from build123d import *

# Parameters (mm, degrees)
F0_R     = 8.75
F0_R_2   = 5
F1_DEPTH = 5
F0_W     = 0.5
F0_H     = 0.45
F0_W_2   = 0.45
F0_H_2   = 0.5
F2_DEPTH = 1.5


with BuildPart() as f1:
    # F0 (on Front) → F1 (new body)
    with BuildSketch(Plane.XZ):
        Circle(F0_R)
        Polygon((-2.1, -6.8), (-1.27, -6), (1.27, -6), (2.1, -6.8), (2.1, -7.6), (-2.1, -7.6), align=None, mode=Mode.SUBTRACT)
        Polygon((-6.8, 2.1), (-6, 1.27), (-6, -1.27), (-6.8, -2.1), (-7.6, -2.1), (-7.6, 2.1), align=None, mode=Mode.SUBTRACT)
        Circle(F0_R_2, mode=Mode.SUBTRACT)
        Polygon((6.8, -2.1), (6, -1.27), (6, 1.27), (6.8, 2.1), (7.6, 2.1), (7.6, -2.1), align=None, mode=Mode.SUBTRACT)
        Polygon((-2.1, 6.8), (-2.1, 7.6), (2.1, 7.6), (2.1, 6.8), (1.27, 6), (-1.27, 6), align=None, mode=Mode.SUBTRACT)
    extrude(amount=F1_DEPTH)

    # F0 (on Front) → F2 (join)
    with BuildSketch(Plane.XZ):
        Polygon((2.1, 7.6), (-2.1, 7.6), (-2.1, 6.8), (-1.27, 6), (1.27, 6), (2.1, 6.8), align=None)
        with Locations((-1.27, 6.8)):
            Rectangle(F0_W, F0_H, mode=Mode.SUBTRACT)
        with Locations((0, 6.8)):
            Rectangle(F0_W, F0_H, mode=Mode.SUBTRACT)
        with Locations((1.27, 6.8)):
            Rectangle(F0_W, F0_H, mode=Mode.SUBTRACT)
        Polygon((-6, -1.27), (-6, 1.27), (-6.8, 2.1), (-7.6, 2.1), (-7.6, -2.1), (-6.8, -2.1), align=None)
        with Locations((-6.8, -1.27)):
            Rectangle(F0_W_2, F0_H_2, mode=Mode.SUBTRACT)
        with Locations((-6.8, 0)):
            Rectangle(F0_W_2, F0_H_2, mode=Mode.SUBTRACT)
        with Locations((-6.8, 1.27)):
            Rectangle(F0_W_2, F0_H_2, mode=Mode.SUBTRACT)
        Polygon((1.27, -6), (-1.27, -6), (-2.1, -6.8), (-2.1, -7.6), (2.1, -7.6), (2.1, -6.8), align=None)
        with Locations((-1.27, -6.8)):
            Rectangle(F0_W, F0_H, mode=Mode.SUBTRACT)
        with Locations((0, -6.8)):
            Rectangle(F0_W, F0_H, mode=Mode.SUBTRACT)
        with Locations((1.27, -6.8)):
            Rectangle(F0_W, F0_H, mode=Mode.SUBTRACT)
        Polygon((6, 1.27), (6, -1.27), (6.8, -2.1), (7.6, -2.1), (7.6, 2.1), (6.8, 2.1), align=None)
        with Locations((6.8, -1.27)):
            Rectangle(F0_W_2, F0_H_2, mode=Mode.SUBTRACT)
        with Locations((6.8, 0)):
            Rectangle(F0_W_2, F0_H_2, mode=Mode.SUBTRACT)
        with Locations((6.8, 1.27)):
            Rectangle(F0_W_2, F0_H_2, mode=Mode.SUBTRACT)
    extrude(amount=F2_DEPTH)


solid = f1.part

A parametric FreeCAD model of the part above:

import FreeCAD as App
import Part
import Sketcher

V = App.Vector
Q = App.Units.Quantity

doc = App.newDocument("Part")
body = doc.addObject("PartDesign::Body", "Body")

# Sketch on XZ plane
sketch1 = body.newObject("Sketcher::SketchObject", "Sketch")
sketch1.AttachmentSupport = (doc.getObject("XZ_Plane"), [""])
sketch1.MapMode = "FlatFace"
sketch1.addGeometry([
    Part.Circle(V(0, 0, 0), V(0, 0, 1), 8.8),  # 0
    Part.LineSegment(V(-2.1, -7.6, 0), V(-2.1, -6.8, 0)),  # 1
    Part.LineSegment(V(-2.1, -6.8, 0), V(-1.3, -6, 0)),  # 2
    Part.LineSegment(V(-1.3, -6, 0), V(1.3, -6, 0)),  # 3
    Part.LineSegment(V(1.3, -6, 0), V(2.1, -6.8, 0)),  # 4
    Part.LineSegment(V(2.1, -6.8, 0), V(2.1, -7.6, 0)),  # 5
    Part.LineSegment(V(2.1, -7.6, 0), V(-2.1, -7.6, 0)),  # 6
    Part.LineSegment(V(-7.6, 2.1, 0), V(-6.8, 2.1, 0)),  # 7
    Part.LineSegment(V(-6.8, 2.1, 0), V(-6, 1.3, 0)),  # 8
    Part.LineSegment(V(-6, 1.3, 0), V(-6, -1.3, 0)),  # 9
    Part.LineSegment(V(-6, -1.3, 0), V(-6.8, -2.1, 0)),  # 10
    Part.LineSegment(V(-6.8, -2.1, 0), V(-7.6, -2.1, 0)),  # 11
    Part.LineSegment(V(-7.6, -2.1, 0), V(-7.6, 2.1, 0)),  # 12
    Part.Circle(V(0, 0, 0), V(0, 0, 1), 5),  # 13
    Part.LineSegment(V(7.6, -2.1, 0), V(6.8, -2.1, 0)),  # 14
    Part.LineSegment(V(6.8, -2.1, 0), V(6, -1.3, 0)),  # 15
    Part.LineSegment(V(6, -1.3, 0), V(6, 1.3, 0)),  # 16
    Part.LineSegment(V(6, 1.3, 0), V(6.8, 2.1, 0)),  # 17
    Part.LineSegment(V(6.8, 2.1, 0), V(7.6, 2.1, 0)),  # 18
    Part.LineSegment(V(7.6, 2.1, 0), V(7.6, -2.1, 0)),  # 19
    Part.LineSegment(V(-1.3, 6, 0), V(-2.1, 6.8, 0)),  # 20
    Part.LineSegment(V(-2.1, 6.8, 0), V(-2.1, 7.6, 0)),  # 21
    Part.LineSegment(V(-2.1, 7.6, 0), V(2.1, 7.6, 0)),  # 22
    Part.LineSegment(V(2.1, 7.6, 0), V(2.1, 6.8, 0)),  # 23
    Part.LineSegment(V(2.1, 6.8, 0), V(1.3, 6, 0)),  # 24
    Part.LineSegment(V(1.3, 6, 0), V(-1.3, 6, 0)),  # 25
], False)
sketch1.addConstraint([
    Sketcher.Constraint("Coincident", 1, 2, 2, 1),
    Sketcher.Constraint("Coincident", 2, 2, 3, 1),
    Sketcher.Constraint("Coincident", 3, 2, 4, 1),
    Sketcher.Constraint("Coincident", 4, 2, 5, 1),
    Sketcher.Constraint("Coincident", 5, 2, 6, 1),
    Sketcher.Constraint("Coincident", 6, 2, 1, 1),
    Sketcher.Constraint("Coincident", 7, 2, 8, 1),
    Sketcher.Constraint("Coincident", 8, 2, 9, 1),
    Sketcher.Constraint("Coincident", 9, 2, 10, 1),
    Sketcher.Constraint("Coincident", 10, 2, 11, 1),
    Sketcher.Constraint("Coincident", 11, 2, 12, 1),
    Sketcher.Constraint("Coincident", 12, 2, 7, 1),
    Sketcher.Constraint("Coincident", 14, 2, 15, 1),
    Sketcher.Constraint("Coincident", 15, 2, 16, 1),
    Sketcher.Constraint("Coincident", 16, 2, 17, 1),
    Sketcher.Constraint("Coincident", 17, 2, 18, 1),
    Sketcher.Constraint("Coincident", 18, 2, 19, 1),
    Sketcher.Constraint("Coincident", 19, 2, 14, 1),
    Sketcher.Constraint("Coincident", 20, 2, 21, 1),
    Sketcher.Constraint("Coincident", 21, 2, 22, 1),
    Sketcher.Constraint("Coincident", 22, 2, 23, 1),
    Sketcher.Constraint("Coincident", 23, 2, 24, 1),
    Sketcher.Constraint("Coincident", 24, 2, 25, 1),
    Sketcher.Constraint("Coincident", 25, 2, 20, 1),
    Sketcher.Constraint("Vertical", 1),
    Sketcher.Constraint("Horizontal", 3),
    Sketcher.Constraint("Vertical", 5),
    Sketcher.Constraint("Horizontal", 6),
    Sketcher.Constraint("Horizontal", 7),
    Sketcher.Constraint("Vertical", 9),
    Sketcher.Constraint("Horizontal", 11),
    Sketcher.Constraint("Vertical", 12),
    Sketcher.Constraint("Horizontal", 14),
    Sketcher.Constraint("Vertical", 16),
    Sketcher.Constraint("Horizontal", 18),
    Sketcher.Constraint("Vertical", 19),
    Sketcher.Constraint("Vertical", 21),
    Sketcher.Constraint("Horizontal", 22),
    Sketcher.Constraint("Vertical", 23),
    Sketcher.Constraint("Horizontal", 25),
    Sketcher.Constraint("Coincident", 0, 3, -1, 1),
    Sketcher.Constraint("Coincident", 13, 3, -1, 1),
    Sketcher.Constraint("Symmetric", 7, 2, 14, 2, -1, 1),
    Sketcher.Constraint("Symmetric", 8, 2, 15, 2, -1, 1),
    Sketcher.Constraint("Symmetric", 10, 2, 17, 2, -1, 1),
    Sketcher.Constraint("Symmetric", 4, 2, 20, 2, -1, 1),
    Sketcher.Constraint("Symmetric", 6, 2, 22, 2, -1, 1),
    Sketcher.Constraint("Symmetric", 2, 2, 24, 2, -1, 1),
    Sketcher.Constraint("Symmetric", 1, 2, 4, 2, -2),
    Sketcher.Constraint("Symmetric", 10, 2, 14, 2, -2),
    Sketcher.Constraint("Perpendicular", 2, 8),
    Sketcher.Constraint("Perpendicular", 4, 10),
    Sketcher.Constraint("Parallel", 10, 17),
    Sketcher.Constraint("Perpendicular", 17, 20),
    Sketcher.Constraint("Perpendicular", 15, 24),
    Sketcher.Constraint("Horizontal", 9, 2, 15, 2),
    Sketcher.Constraint("Equal", 11, 14),
    Sketcher.Constraint("Equal", 18, 1),
    Sketcher.Constraint("Equal", 25, 9),
    Sketcher.Constraint("Equal", 22, 12),
    Sketcher.Constraint("Diameter", 13, Q("10 mm")),
    Sketcher.Constraint("Diameter", 0, Q("17.5 mm")),
    Sketcher.Constraint("DistanceX", 6, 2, 6, 1, Q("4.2 mm")),
    Sketcher.Constraint("DistanceX", 7, 1, 7, 2, Q("0.8 mm")),
    Sketcher.Constraint("DistanceY", 2, 2, -1, 1, Q("6 mm")),
    Sketcher.Constraint("DistanceX", 8, 2, -1, 1, Q("6 mm")),
    Sketcher.Constraint("DistanceX", 3, 1, 3, 2, Q("2.54 mm")),
    Sketcher.Constraint("DistanceY", 1, 2, -1, 1, Q("6.8 mm")),
])
pad1 = body.newObject("PartDesign::Pad", "Pad")
pad1.Profile = sketch1
pad1.Length = 5

# Sketch on XZ plane
sketch2 = body.newObject("Sketcher::SketchObject", "Sketch001")
sketch2.AttachmentSupport = (doc.getObject("XZ_Plane"), [""])
sketch2.MapMode = "FlatFace"
sketch2.addGeometry([
    Part.LineSegment(V(2.1, 7.6, 0), V(-2.1, 7.6, 0)),  # 0
    Part.LineSegment(V(-2.1, 7.6, 0), V(-2.1, 6.8, 0)),  # 1
    Part.LineSegment(V(-2.1, 6.8, 0), V(-1.27, 6, 0)),  # 2
    Part.LineSegment(V(-1.27, 6, 0), V(1.27, 6, 0)),  # 3
    Part.LineSegment(V(1.27, 6, 0), V(2.1, 6.8, 0)),  # 4
    Part.LineSegment(V(2.1, 6.8, 0), V(2.1, 7.6, 0)),  # 5
    Part.LineSegment(V(-1.02, 6.58, 0), V(-1.52, 6.58, 0)),  # 6
    Part.LineSegment(V(-1.52, 6.58, 0), V(-1.52, 7.03, 0)),  # 7
    Part.LineSegment(V(-1.52, 7.03, 0), V(-1.02, 7.03, 0)),  # 8
    Part.LineSegment(V(-1.02, 7.03, 0), V(-1.02, 6.58, 0)),  # 9
    Part.LineSegment(V(0.25, 6.58, 0), V(-0.25, 6.58, 0)),  # 10
    Part.LineSegment(V(-0.25, 6.58, 0), V(-0.25, 7.03, 0)),  # 11
    Part.LineSegment(V(-0.25, 7.03, 0), V(0.25, 7.03, 0)),  # 12
    Part.LineSegment(V(0.25, 7.03, 0), V(0.25, 6.58, 0)),  # 13
    Part.LineSegment(V(1.52, 6.58, 0), V(1.02, 6.58, 0)),  # 14
    Part.LineSegment(V(1.02, 6.58, 0), V(1.02, 7.03, 0)),  # 15
    Part.LineSegment(V(1.02, 7.03, 0), V(1.52, 7.03, 0)),  # 16
    Part.LineSegment(V(1.52, 7.03, 0), V(1.52, 6.58, 0)),  # 17
    Part.LineSegment(V(-6, -1.27, 0), V(-6, 1.27, 0)),  # 18
    Part.LineSegment(V(-6, 1.27, 0), V(-6.8, 2.1, 0)),  # 19
    Part.LineSegment(V(-6.8, 2.1, 0), V(-7.6, 2.1, 0)),  # 20
    Part.LineSegment(V(-7.6, 2.1, 0), V(-7.6, -2.1, 0)),  # 21
    Part.LineSegment(V(-7.6, -2.1, 0), V(-6.8, -2.1, 0)),  # 22
    Part.LineSegment(V(-6.8, -2.1, 0), V(-6, -1.27, 0)),  # 23
    Part.LineSegment(V(-6.58, -1.52, 0), V(-7.03, -1.52, 0)),  # 24
    Part.LineSegment(V(-7.03, -1.52, 0), V(-7.03, -1.02, 0)),  # 25
    Part.LineSegment(V(-7.03, -1.02, 0), V(-6.58, -1.02, 0)),  # 26
    Part.LineSegment(V(-6.58, -1.02, 0), V(-6.58, -1.52, 0)),  # 27
    Part.LineSegment(V(-6.58, -0.25, 0), V(-7.03, -0.25, 0)),  # 28
    Part.LineSegment(V(-7.03, -0.25, 0), V(-7.03, 0.25, 0)),  # 29
    Part.LineSegment(V(-7.03, 0.25, 0), V(-6.58, 0.25, 0)),  # 30
    Part.LineSegment(V(-6.58, 0.25, 0), V(-6.58, -0.25, 0)),  # 31
    Part.LineSegment(V(-6.58, 1.02, 0), V(-7.03, 1.02, 0)),  # 32
    Part.LineSegment(V(-7.03, 1.02, 0), V(-7.03, 1.52, 0)),  # 33
    Part.LineSegment(V(-7.03, 1.52, 0), V(-6.58, 1.52, 0)),  # 34
    Part.LineSegment(V(-6.58, 1.52, 0), V(-6.58, 1.02, 0)),  # 35
    Part.LineSegment(V(1.27, -6, 0), V(-1.27, -6, 0)),  # 36
    Part.LineSegment(V(-1.27, -6, 0), V(-2.1, -6.8, 0)),  # 37
    Part.LineSegment(V(-2.1, -6.8, 0), V(-2.1, -7.6, 0)),  # 38
    Part.LineSegment(V(-2.1, -7.6, 0), V(2.1, -7.6, 0)),  # 39
    Part.LineSegment(V(2.1, -7.6, 0), V(2.1, -6.8, 0)),  # 40
    Part.LineSegment(V(2.1, -6.8, 0), V(1.27, -6, 0)),  # 41
    Part.LineSegment(V(-1.02, -7.03, 0), V(-1.52, -7.03, 0)),  # 42
    Part.LineSegment(V(-1.52, -7.03, 0), V(-1.52, -6.58, 0)),  # 43
    Part.LineSegment(V(-1.52, -6.58, 0), V(-1.02, -6.58, 0)),  # 44
    Part.LineSegment(V(-1.02, -6.58, 0), V(-1.02, -7.03, 0)),  # 45
    Part.LineSegment(V(0.25, -7.03, 0), V(-0.25, -7.03, 0)),  # 46
    Part.LineSegment(V(-0.25, -7.03, 0), V(-0.25, -6.58, 0)),  # 47
    Part.LineSegment(V(-0.25, -6.58, 0), V(0.25, -6.58, 0)),  # 48
    Part.LineSegment(V(0.25, -6.58, 0), V(0.25, -7.03, 0)),  # 49
    Part.LineSegment(V(1.52, -7.03, 0), V(1.02, -7.03, 0)),  # 50
    Part.LineSegment(V(1.02, -7.03, 0), V(1.02, -6.58, 0)),  # 51
    Part.LineSegment(V(1.02, -6.58, 0), V(1.52, -6.58, 0)),  # 52
    Part.LineSegment(V(1.52, -6.58, 0), V(1.52, -7.03, 0)),  # 53
    Part.LineSegment(V(6, 1.27, 0), V(6, -1.27, 0)),  # 54
    Part.LineSegment(V(6, -1.27, 0), V(6.8, -2.1, 0)),  # 55
    Part.LineSegment(V(6.8, -2.1, 0), V(7.6, -2.1, 0)),  # 56
    Part.LineSegment(V(7.6, -2.1, 0), V(7.6, 2.1, 0)),  # 57
    Part.LineSegment(V(7.6, 2.1, 0), V(6.8, 2.1, 0)),  # 58
    Part.LineSegment(V(6.8, 2.1, 0), V(6, 1.27, 0)),  # 59
    Part.LineSegment(V(7.03, -1.52, 0), V(6.58, -1.52, 0)),  # 60
    Part.LineSegment(V(6.58, -1.52, 0), V(6.58, -1.02, 0)),  # 61
    Part.LineSegment(V(6.58, -1.02, 0), V(7.03, -1.02, 0)),  # 62
    Part.LineSegment(V(7.03, -1.02, 0), V(7.03, -1.52, 0)),  # 63
    Part.LineSegment(V(7.03, -0.25, 0), V(6.58, -0.25, 0)),  # 64
    Part.LineSegment(V(6.58, -0.25, 0), V(6.58, 0.25, 0)),  # 65
    Part.LineSegment(V(6.58, 0.25, 0), V(7.03, 0.25, 0)),  # 66
    Part.LineSegment(V(7.03, 0.25, 0), V(7.03, -0.25, 0)),  # 67
    Part.LineSegment(V(7.03, 1.02, 0), V(6.58, 1.02, 0)),  # 68
    Part.LineSegment(V(6.58, 1.02, 0), V(6.58, 1.52, 0)),  # 69
    Part.LineSegment(V(6.58, 1.52, 0), V(7.03, 1.52, 0)),  # 70
    Part.LineSegment(V(7.03, 1.52, 0), V(7.03, 1.02, 0)),  # 71
], False)
sketch2.addConstraint([
    Sketcher.Constraint("Coincident", 0, 2, 1, 1),
    Sketcher.Constraint("Coincident", 1, 2, 2, 1),
    Sketcher.Constraint("Coincident", 2, 2, 3, 1),
    Sketcher.Constraint("Coincident", 3, 2, 4, 1),
    Sketcher.Constraint("Coincident", 4, 2, 5, 1),
    Sketcher.Constraint("Coincident", 5, 2, 0, 1),
    Sketcher.Constraint("Coincident", 6, 2, 7, 1),
    Sketcher.Constraint("Coincident", 7, 2, 8, 1),
    Sketcher.Constraint("Coincident", 8, 2, 9, 1),
    Sketcher.Constraint("Coincident", 9, 2, 6, 1),
    Sketcher.Constraint("Coincident", 10, 2, 11, 1),
    Sketcher.Constraint("Coincident", 11, 2, 12, 1),
    Sketcher.Constraint("Coincident", 12, 2, 13, 1),
    Sketcher.Constraint("Coincident", 13, 2, 10, 1),
    Sketcher.Constraint("Coincident", 14, 2, 15, 1),
    Sketcher.Constraint("Coincident", 15, 2, 16, 1),
    Sketcher.Constraint("Coincident", 16, 2, 17, 1),
    Sketcher.Constraint("Coincident", 17, 2, 14, 1),
    Sketcher.Constraint("Coincident", 18, 2, 19, 1),
    Sketcher.Constraint("Coincident", 19, 2, 20, 1),
    Sketcher.Constraint("Coincident", 20, 2, 21, 1),
    Sketcher.Constraint("Coincident", 21, 2, 22, 1),
    Sketcher.Constraint("Coincident", 22, 2, 23, 1),
    Sketcher.Constraint("Coincident", 23, 2, 18, 1),
    Sketcher.Constraint("Coincident", 24, 2, 25, 1),
    Sketcher.Constraint("Coincident", 25, 2, 26, 1),
    Sketcher.Constraint("Coincident", 26, 2, 27, 1),
    Sketcher.Constraint("Coincident", 27, 2, 24, 1),
    Sketcher.Constraint("Coincident", 28, 2, 29, 1),
    Sketcher.Constraint("Coincident", 29, 2, 30, 1),
    Sketcher.Constraint("Coincident", 30, 2, 31, 1),
    Sketcher.Constraint("Coincident", 31, 2, 28, 1),
    Sketcher.Constraint("Coincident", 32, 2, 33, 1),
    Sketcher.Constraint("Coincident", 33, 2, 34, 1),
    Sketcher.Constraint("Coincident", 34, 2, 35, 1),
    Sketcher.Constraint("Coincident", 35, 2, 32, 1),
    Sketcher.Constraint("Coincident", 36, 2, 37, 1),
    Sketcher.Constraint("Coincident", 37, 2, 38, 1),
    Sketcher.Constraint("Coincident", 38, 2, 39, 1),
    Sketcher.Constraint("Coincident", 39, 2, 40, 1),
    Sketcher.Constraint("Coincident", 40, 2, 41, 1),
    Sketcher.Constraint("Coincident", 41, 2, 36, 1),
    Sketcher.Constraint("Coincident", 42, 2, 43, 1),
    Sketcher.Constraint("Coincident", 43, 2, 44, 1),
    Sketcher.Constraint("Coincident", 44, 2, 45, 1),
    Sketcher.Constraint("Coincident", 45, 2, 42, 1),
    Sketcher.Constraint("Coincident", 46, 2, 47, 1),
    Sketcher.Constraint("Coincident", 47, 2, 48, 1),
    Sketcher.Constraint("Coincident", 48, 2, 49, 1),
    Sketcher.Constraint("Coincident", 49, 2, 46, 1),
    Sketcher.Constraint("Coincident", 50, 2, 51, 1),
    Sketcher.Constraint("Coincident", 51, 2, 52, 1),
    Sketcher.Constraint("Coincident", 52, 2, 53, 1),
    Sketcher.Constraint("Coincident", 53, 2, 50, 1),
    Sketcher.Constraint("Coincident", 54, 2, 55, 1),
    Sketcher.Constraint("Coincident", 55, 2, 56, 1),
    Sketcher.Constraint("Coincident", 56, 2, 57, 1),
    Sketcher.Constraint("Coincident", 57, 2, 58, 1),
    Sketcher.Constraint("Coincident", 58, 2, 59, 1),
    Sketcher.Constraint("Coincident", 59, 2, 54, 1),
    Sketcher.Constraint("Coincident", 60, 2, 61, 1),
    Sketcher.Constraint("Coincident", 61, 2, 62, 1),
    Sketcher.Constraint("Coincident", 62, 2, 63, 1),
    Sketcher.Constraint("Coincident", 63, 2, 60, 1),
    Sketcher.Constraint("Coincident", 64, 2, 65, 1),
    Sketcher.Constraint("Coincident", 65, 2, 66, 1),
    Sketcher.Constraint("Coincident", 66, 2, 67, 1),
    Sketcher.Constraint("Coincident", 67, 2, 64, 1),
    Sketcher.Constraint("Coincident", 68, 2, 69, 1),
    Sketcher.Constraint("Coincident", 69, 2, 70, 1),
    Sketcher.Constraint("Coincident", 70, 2, 71, 1),
    Sketcher.Constraint("Coincident", 71, 2, 68, 1),
    Sketcher.Constraint("Horizontal", 0),
    Sketcher.Constraint("Vertical", 1),
    Sketcher.Constraint("Horizontal", 3),
    Sketcher.Constraint("Vertical", 5),
    Sketcher.Constraint("Horizontal", 6),
    Sketcher.Constraint("Vertical", 7),
    Sketcher.Constraint("Horizontal", 8),
    Sketcher.Constraint("Vertical", 9),
    Sketcher.Constraint("Horizontal", 10),
    Sketcher.Constraint("Vertical", 11),
    Sketcher.Constraint("Horizontal", 12),
    Sketcher.Constraint("Vertical", 13),
    Sketcher.Constraint("Horizontal", 14),
    Sketcher.Constraint("Vertical", 15),
    Sketcher.Constraint("Horizontal", 16),
    Sketcher.Constraint("Vertical", 17),
    Sketcher.Constraint("Vertical", 18),
    Sketcher.Constraint("Horizontal", 20),
    Sketcher.Constraint("Vertical", 21),
    Sketcher.Constraint("Horizontal", 22),
    Sketcher.Constraint("Horizontal", 24),
    Sketcher.Constraint("Vertical", 25),
    Sketcher.Constraint("Horizontal", 26),
    Sketcher.Constraint("Vertical", 27),
    Sketcher.Constraint("Horizontal", 28),
    Sketcher.Constraint("Vertical", 29),
    Sketcher.Constraint("Horizontal", 30),
    Sketcher.Constraint("Vertical", 31),
    Sketcher.Constraint("Horizontal", 32),
    Sketcher.Constraint("Vertical", 33),
    Sketcher.Constraint("Horizontal", 34),
    Sketcher.Constraint("Vertical", 35),
    Sketcher.Constraint("Horizontal", 36),
    Sketcher.Constraint("Vertical", 38),
    Sketcher.Constraint("Horizontal", 39),
    Sketcher.Constraint("Vertical", 40),
    Sketcher.Constraint("Horizontal", 42),
    Sketcher.Constraint("Vertical", 43),
    Sketcher.Constraint("Horizontal", 44),
    Sketcher.Constraint("Vertical", 45),
    Sketcher.Constraint("Horizontal", 46),
    Sketcher.Constraint("Vertical", 47),
    Sketcher.Constraint("Horizontal", 48),
    Sketcher.Constraint("Vertical", 49),
    Sketcher.Constraint("Horizontal", 50),
    Sketcher.Constraint("Vertical", 51),
    Sketcher.Constraint("Horizontal", 52),
    Sketcher.Constraint("Vertical", 53),
    Sketcher.Constraint("Vertical", 54),
    Sketcher.Constraint("Horizontal", 56),
    Sketcher.Constraint("Vertical", 57),
    Sketcher.Constraint("Horizontal", 58),
    Sketcher.Constraint("Horizontal", 60),
    Sketcher.Constraint("Vertical", 61),
    Sketcher.Constraint("Horizontal", 62),
    Sketcher.Constraint("Vertical", 63),
    Sketcher.Constraint("Horizontal", 64),
    Sketcher.Constraint("Vertical", 65),
    Sketcher.Constraint("Horizontal", 66),
    Sketcher.Constraint("Vertical", 67),
    Sketcher.Constraint("Horizontal", 68),
    Sketcher.Constraint("Vertical", 69),
    Sketcher.Constraint("Horizontal", 70),
    Sketcher.Constraint("Vertical", 71),
    Sketcher.Constraint("Symmetric", 3, 2, 36, 2, -1, 1),
    Sketcher.Constraint("Symmetric", 4, 2, 37, 2, -1, 1),
    Sketcher.Constraint("Symmetric", 0, 2, 39, 2, -1, 1),
    Sketcher.Constraint("Symmetric", 16, 2, 42, 2, -1, 1),
    Sketcher.Constraint("Symmetric", 14, 2, 44, 2, -1, 1),
    Sketcher.Constraint("Symmetric", 12, 2, 46, 2, -1, 1),
    Sketcher.Constraint("Symmetric", 10, 2, 48, 2, -1, 1),
    Sketcher.Constraint("Symmetric", 8, 2, 50, 2, -1, 1),
    Sketcher.Constraint("Symmetric", 6, 2, 52, 2, -1, 1),
    Sketcher.Constraint("Symmetric", 18, 2, 54, 2, -1, 1),
    Sketcher.Constraint("Symmetric", 19, 2, 55, 2, -1, 1),
    Sketcher.Constraint("Symmetric", 21, 2, 57, 2, -1, 1),
    Sketcher.Constraint("Symmetric", 34, 2, 60, 2, -1, 1),
    Sketcher.Constraint("Symmetric", 32, 2, 62, 2, -1, 1),
    Sketcher.Constraint("Symmetric", 30, 2, 64, 2, -1, 1),
    Sketcher.Constraint("Symmetric", 28, 2, 66, 2, -1, 1),
    Sketcher.Constraint("Symmetric", 26, 2, 68, 2, -1, 1),
    Sketcher.Constraint("Symmetric", 24, 2, 70, 2, -1, 1),
    Sketcher.Constraint("Symmetric", 1, 2, 4, 2, -2),
    Sketcher.Constraint("Symmetric", 9, 2, 14, 2, -2),
    Sketcher.Constraint("Symmetric", 7, 2, 16, 2, -2),
    Sketcher.Constraint("Symmetric", 22, 2, 55, 2, -2),
    Sketcher.Constraint("Symmetric", 27, 2, 60, 2, -2),
    Sketcher.Constraint("Symmetric", 25, 2, 62, 2, -2),
    Sketcher.Constraint("Perpendicular", 4, 19),
    Sketcher.Constraint("Perpendicular", 2, 23),
    Sketcher.Constraint("Perpendicular", 23, 41),
    Sketcher.Constraint("Perpendicular", 41, 59),
    Sketcher.Constraint("Horizontal", 9, 2, 10, 2),
    Sketcher.Constraint("Horizontal", 8, 2, 11, 2),
    Sketcher.Constraint("Horizontal", 37, 2, 40, 2),
    Sketcher.Constraint("Horizontal", 23, 2, 54, 2),
    Sketcher.Constraint("Horizontal", 18, 2, 59, 2),
    Sketcher.Constraint("Horizontal", 31, 2, 64, 2),
    Sketcher.Constraint("Vertical", 25, 2, 28, 2),
    Sketcher.Constraint("Vertical", 27, 2, 30, 2),
    Sketcher.Constraint("Vertical", 11, 2, 46, 2),
    Sketcher.Constraint("Equal", 8, 10),
    Sketcher.Constraint("Equal", 58, 1),
    Sketcher.Constraint("Equal", 70, 7),
    Sketcher.Constraint("Equal", 36, 18),
    Sketcher.Constraint("Equal", 39, 21),
    Sketcher.Constraint("Equal", 52, 25),
    Sketcher.Constraint("Equal", 27, 29),
    Sketcher.Constraint("DistanceX", 0, 2, 0, 1, Q("4.2 mm")),
    Sketcher.Constraint("DistanceX", 6, 2, 6, 1, Q("0.5 mm")),
    Sketcher.Constraint("DistanceX", 20, 2, 20, 1, Q("0.8 mm")),
    Sketcher.Constraint("DistanceY", -1, 1, 2, 2, Q("6 mm")),
    Sketcher.Constraint("DistanceX", 18, 2, -1, 1, Q("6 mm")),
    Sketcher.Constraint("DistanceX", 3, 1, 3, 2, Q("2.54 mm")),
    Sketcher.Constraint("DistanceX", 24, 2, 24, 1, Q("0.45 mm")),
    Sketcher.Constraint("DistanceY", -1, 1, 0, 2, Q("7.6 mm")),
    Sketcher.Constraint("DistanceX", 6, 2, -1, 1, Q("1.52 mm")),
    Sketcher.Constraint("DistanceY", 24, 2, -1, 1, Q("1.52 mm")),
    Sketcher.Constraint("DistanceY", -1, 1, 6, 2, Q("6.575 mm")),
    Sketcher.Constraint("DistanceX", 24, 2, -1, 1, Q("7.025 mm")),
])
pad2 = body.newObject("PartDesign::Pad", "Pad001")
pad2.Profile = sketch2
pad2.Length = 1.5

doc.recompute()
